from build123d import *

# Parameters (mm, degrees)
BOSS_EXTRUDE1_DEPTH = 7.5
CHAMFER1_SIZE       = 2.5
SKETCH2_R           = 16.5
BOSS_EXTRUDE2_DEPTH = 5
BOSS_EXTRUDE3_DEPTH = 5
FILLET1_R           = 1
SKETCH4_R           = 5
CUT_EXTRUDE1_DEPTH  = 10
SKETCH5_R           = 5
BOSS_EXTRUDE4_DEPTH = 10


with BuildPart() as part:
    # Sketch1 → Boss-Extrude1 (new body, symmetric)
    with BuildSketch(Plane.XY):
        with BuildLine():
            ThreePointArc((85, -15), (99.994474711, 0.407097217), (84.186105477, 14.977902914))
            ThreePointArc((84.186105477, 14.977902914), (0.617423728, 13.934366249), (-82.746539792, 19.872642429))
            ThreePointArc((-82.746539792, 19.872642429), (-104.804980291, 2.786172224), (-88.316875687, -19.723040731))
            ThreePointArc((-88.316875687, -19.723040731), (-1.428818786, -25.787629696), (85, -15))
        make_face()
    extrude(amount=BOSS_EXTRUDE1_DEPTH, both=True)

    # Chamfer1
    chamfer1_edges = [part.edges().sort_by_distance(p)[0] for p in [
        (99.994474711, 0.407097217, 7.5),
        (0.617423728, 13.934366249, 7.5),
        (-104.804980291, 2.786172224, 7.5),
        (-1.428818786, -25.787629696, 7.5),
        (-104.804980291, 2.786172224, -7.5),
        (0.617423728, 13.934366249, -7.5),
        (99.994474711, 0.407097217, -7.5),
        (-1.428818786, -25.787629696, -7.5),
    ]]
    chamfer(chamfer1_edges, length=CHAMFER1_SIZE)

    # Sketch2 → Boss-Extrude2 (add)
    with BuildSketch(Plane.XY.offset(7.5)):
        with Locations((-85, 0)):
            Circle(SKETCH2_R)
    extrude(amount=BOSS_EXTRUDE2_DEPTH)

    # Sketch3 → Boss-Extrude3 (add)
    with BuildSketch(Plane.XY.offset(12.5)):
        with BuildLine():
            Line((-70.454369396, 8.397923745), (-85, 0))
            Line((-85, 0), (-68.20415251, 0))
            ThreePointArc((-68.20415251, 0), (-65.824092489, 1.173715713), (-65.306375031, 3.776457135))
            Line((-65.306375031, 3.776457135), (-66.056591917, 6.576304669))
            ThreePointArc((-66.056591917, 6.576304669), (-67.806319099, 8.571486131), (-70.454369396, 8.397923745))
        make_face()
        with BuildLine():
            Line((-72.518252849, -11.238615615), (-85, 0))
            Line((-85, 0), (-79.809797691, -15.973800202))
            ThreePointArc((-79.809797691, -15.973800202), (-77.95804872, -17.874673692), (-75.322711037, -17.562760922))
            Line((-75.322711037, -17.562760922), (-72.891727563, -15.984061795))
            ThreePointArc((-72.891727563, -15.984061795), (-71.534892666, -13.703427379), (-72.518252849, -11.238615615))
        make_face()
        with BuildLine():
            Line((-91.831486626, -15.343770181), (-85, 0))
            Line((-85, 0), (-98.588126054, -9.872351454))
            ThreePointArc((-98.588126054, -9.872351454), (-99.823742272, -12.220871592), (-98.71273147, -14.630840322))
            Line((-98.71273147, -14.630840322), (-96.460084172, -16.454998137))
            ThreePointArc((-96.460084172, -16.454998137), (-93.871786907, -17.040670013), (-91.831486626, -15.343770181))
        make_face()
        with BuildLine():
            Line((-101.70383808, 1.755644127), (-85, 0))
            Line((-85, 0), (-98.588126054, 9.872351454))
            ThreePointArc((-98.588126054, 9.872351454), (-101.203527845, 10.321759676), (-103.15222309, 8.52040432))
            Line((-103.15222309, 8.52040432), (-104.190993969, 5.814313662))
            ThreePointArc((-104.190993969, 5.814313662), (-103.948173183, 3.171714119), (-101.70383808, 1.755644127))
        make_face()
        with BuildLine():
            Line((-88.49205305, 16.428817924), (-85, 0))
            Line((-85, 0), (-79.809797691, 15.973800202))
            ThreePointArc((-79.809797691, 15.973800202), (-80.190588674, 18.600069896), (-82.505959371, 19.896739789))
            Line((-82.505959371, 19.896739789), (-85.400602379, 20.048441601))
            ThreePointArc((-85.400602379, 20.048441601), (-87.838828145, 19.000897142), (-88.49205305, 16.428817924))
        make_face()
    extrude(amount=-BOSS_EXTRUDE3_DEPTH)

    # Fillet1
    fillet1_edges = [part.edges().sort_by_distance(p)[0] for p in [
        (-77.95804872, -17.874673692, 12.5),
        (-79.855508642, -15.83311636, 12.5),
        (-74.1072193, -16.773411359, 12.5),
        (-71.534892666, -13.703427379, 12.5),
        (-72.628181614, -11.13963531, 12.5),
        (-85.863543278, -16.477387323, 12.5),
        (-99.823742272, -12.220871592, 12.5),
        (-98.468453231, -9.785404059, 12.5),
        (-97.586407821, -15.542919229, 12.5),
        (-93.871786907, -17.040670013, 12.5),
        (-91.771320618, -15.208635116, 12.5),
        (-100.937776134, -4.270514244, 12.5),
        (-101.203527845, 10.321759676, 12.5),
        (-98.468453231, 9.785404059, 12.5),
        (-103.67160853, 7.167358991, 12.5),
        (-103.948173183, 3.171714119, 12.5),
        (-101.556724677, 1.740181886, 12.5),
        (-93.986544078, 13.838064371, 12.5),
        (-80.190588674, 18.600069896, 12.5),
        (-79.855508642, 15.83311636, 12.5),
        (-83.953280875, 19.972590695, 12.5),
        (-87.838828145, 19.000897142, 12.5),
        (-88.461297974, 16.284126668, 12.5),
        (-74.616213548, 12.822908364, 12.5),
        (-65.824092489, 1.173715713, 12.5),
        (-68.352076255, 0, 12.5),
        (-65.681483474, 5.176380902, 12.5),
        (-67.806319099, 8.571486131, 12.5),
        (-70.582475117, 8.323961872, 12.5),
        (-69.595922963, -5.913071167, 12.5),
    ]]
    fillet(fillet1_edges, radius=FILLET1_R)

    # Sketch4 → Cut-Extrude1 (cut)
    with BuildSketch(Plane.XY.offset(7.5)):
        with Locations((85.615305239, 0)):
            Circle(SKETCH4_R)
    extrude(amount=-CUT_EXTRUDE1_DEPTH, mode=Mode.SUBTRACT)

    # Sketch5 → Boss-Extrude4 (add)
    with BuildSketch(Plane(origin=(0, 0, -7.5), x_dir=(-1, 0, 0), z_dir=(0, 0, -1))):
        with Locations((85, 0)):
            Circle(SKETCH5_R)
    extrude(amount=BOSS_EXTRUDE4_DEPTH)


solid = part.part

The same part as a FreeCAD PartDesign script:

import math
import FreeCAD as App
import Part
import Sketcher
Q = App.Units.Quantity


def edges_at(feature, points):
    """Names of the edges that pass closest to the given points."""
    edges = feature.Shape.Edges
    near = lambda p: min(range(len(edges)), key=lambda i: edges[i].distToShape(Part.Vertex(*p))[0])
    return sorted({f"Edge{near(p) + 1}" for p in points})

doc = App.newDocument("Part")
body = doc.addObject("PartDesign::Body", "Body")

# Sketch on XY plane
sketch1 = body.newObject("Sketcher::SketchObject", "Sketch")
sketch1.AttachmentSupport = (doc.getObject("XY_Plane"), [""])
sketch1.MapMode = "FlatFace"
sketch1.addGeometry([
    Part.ArcOfCircle(Part.Circle(App.Vector(85, 0, 0), App.Vector(0, 0, 1), 15), math.radians(-90), math.radians(93)),
    Part.ArcOfCircle(Part.Circle(App.Vector(30, 1014, 0), App.Vector(0, 0, 1), 1000), math.radians(-96.47), math.radians(-86.89)),
    Part.ArcOfCircle(Part.Circle(App.Vector(-85, 0, 0), App.Vector(0, 0, 1), 20), math.radians(84), math.radians(260)),
    Part.ArcOfCircle(Part.Circle(App.Vector(-14, 424, 0), App.Vector(0, 0, 1), 450), math.radians(-100), math.radians(-77)),
], False)
sketch1.addConstraint([
    Sketcher.Constraint("Tangent", 0, 2, 1, 2),
    Sketcher.Constraint("Tangent", 1, 1, 2, 1),
    Sketcher.Constraint("Tangent", 2, 2, 3, 1),
    Sketcher.Constraint("Coincident", 3, 2, 0, 1),
    Sketcher.Constraint("Symmetric", 0, 3, 2, 3, -1, 1),
    Sketcher.Constraint("PointOnObject", 0, 3, -1),
    Sketcher.Constraint("Vertical", 0, 3, 3, 2),
    Sketcher.Constraint("Radius", 0, 15.0),
    Sketcher.Constraint("Radius", 1, 1000.0),
    Sketcher.Constraint("Radius", 2, 20.0),
    Sketcher.Constraint("Radius", 3, 450.0),
    Sketcher.Constraint("DistanceX", -1, 1, 0, 3, 85.0),
])
pad1 = body.newObject("PartDesign::Pad", "Pad")
pad1.Profile = sketch1
pad1.Length = 15
pad1.Midplane = True
doc.recompute()

chamfer = body.newObject("PartDesign::Chamfer", "Chamfer")
chamfer.Base = (pad1, edges_at(pad1, [
    (99.994, 0.407, 7.5),
    (0.617, 13.934, 7.5),
    (-104.805, 2.786, 7.5),
    (-1.429, -25.788, 7.5),
    (-104.805, 2.786, -7.5),
    (0.617, 13.934, -7.5),
    (99.994, 0.407, -7.5),
    (-1.429, -25.788, -7.5),
]))
chamfer.Size = 2.5

# Sketch on XY plane
sketch2 = body.newObject("Sketcher::SketchObject", "Sketch001")
sketch2.AttachmentSupport = (doc.getObject("XY_Plane"), [""])
sketch2.MapMode = "FlatFace"
sketch2.AttachmentOffset = App.Placement(App.Vector(0, 0, 7.5), App.Rotation())
sketch2.addGeometry(Part.Circle(App.Vector(-85, 0, 0), App.Vector(0, 0, 1), 16), False)
sketch2.addConstraint([
    Sketcher.Constraint("PointOnObject", 0, 3, -1),
    Sketcher.Constraint("Diameter", 0, 33.0),
    Sketcher.Constraint("DistanceX", 0, 3, -1, 1, 85.0),
])
pad2 = body.newObject("PartDesign::Pad", "Pad001")
pad2.Profile = sketch2
pad2.Length = 5

# Sketch on XY plane
sketch3 = body.newObject("Sketcher::SketchObject", "Sketch002")
sketch3.AttachmentSupport = (doc.getObject("XY_Plane"), [""])
sketch3.MapMode = "FlatFace"
sketch3.AttachmentOffset = App.Placement(App.Vector(0, 0, 12.5), App.Rotation())
sketch3.addGeometry([
    Part.LineSegment(App.Vector(-70.5, 8.4, 0), App.Vector(-85, 0, 0)),  # 0
    Part.LineSegment(App.Vector(-85, 0, 0), App.Vector(-68.2, 0, 0)),  # 1
    Part.ArcOfCircle(Part.Circle(App.Vector(-68.2, 3, 0), App.Vector(0, 0, 1), 3), math.radians(-90), math.radians(15)),  # 2
    Part.LineSegment(App.Vector(-65.3, 3.8, 0), App.Vector(-66.1, 6.6, 0)),  # 3
    Part.ArcOfCircle(Part.Circle(App.Vector(-69, 5.8, 0), App.Vector(0, 0, 1), 3), math.radians(15), math.radians(120)),  # 4
    Part.LineSegment(App.Vector(-72.5, -11.2, 0), App.Vector(-85, 0, 0)),  # 5
    Part.LineSegment(App.Vector(-85, 0, 0), App.Vector(-79.8, -16, 0)),  # 6
    Part.ArcOfCircle(Part.Circle(App.Vector(-77, -15, 0), App.Vector(0, 0, 1), 3), math.radians(-162), math.radians(-57)),  # 7
    Part.LineSegment(App.Vector(-75.3, -17.6, 0), App.Vector(-72.9, -16, 0)),  # 8
    Part.ArcOfCircle(Part.Circle(App.Vector(-74.5, -13.5, 0), App.Vector(0, 0, 1), 3), math.radians(-57), math.radians(48)),  # 9
    Part.LineSegment(App.Vector(-91.8, -15.3, 0), App.Vector(-85, 0, 0)),  # 10
    Part.LineSegment(App.Vector(-85, 0, 0), App.Vector(-98.6, -9.9, 0)),  # 11
    Part.ArcOfCircle(Part.Circle(App.Vector(-96.8, -12.3, 0), App.Vector(0, 0, 1), 3), math.radians(126), math.radians(231)),  # 12
    Part.LineSegment(App.Vector(-98.7, -14.6, 0), App.Vector(-96.5, -16.5, 0)),  # 13
    Part.ArcOfCircle(Part.Circle(App.Vector(-94.6, -14.1, 0), App.Vector(0, 0, 1), 3), math.radians(-129), math.radians(-24)),  # 14
    Part.LineSegment(App.Vector(-101.7, 1.8, 0), App.Vector(-85, 0, 0)),  # 15
    Part.LineSegment(App.Vector(-85, 0, 0), App.Vector(-98.6, 9.9, 0)),  # 16
    Part.ArcOfCircle(Part.Circle(App.Vector(-100.4, 7.4, 0), App.Vector(0, 0, 1), 3), math.radians(54), math.radians(159)),  # 17
    Part.LineSegment(App.Vector(-103.2, 8.5, 0), App.Vector(-104.2, 5.8, 0)),  # 18
    Part.ArcOfCircle(Part.Circle(App.Vector(-101.4, 4.7, 0), App.Vector(0, 0, 1), 3), math.radians(159), math.radians(264)),  # 19
    Part.LineSegment(App.Vector(-88.5, 16.4, 0), App.Vector(-85, 0, 0)),  # 20
    Part.LineSegment(App.Vector(-85, 0, 0), App.Vector(-79.8, 16, 0)),  # 21
    Part.ArcOfCircle(Part.Circle(App.Vector(-82.7, 16.9, 0), App.Vector(0, 0, 1), 3), math.radians(-18), math.radians(87)),  # 22
    Part.LineSegment(App.Vector(-82.5, 19.9, 0), App.Vector(-85.4, 20, 0)),  # 23
    Part.ArcOfCircle(Part.Circle(App.Vector(-85.6, 17.1, 0), App.Vector(0, 0, 1), 3), math.radians(87), math.radians(192)),  # 24
], False)
sketch3.addConstraint([
    Sketcher.Constraint("Coincident", 0, 2, 1, 1),
    Sketcher.Constraint("Tangent", 1, 2, 2, 1),
    Sketcher.Constraint("Tangent", 2, 2, 3, 1),
    Sketcher.Constraint("Tangent", 3, 2, 4, 1),
    Sketcher.Constraint("Tangent", 4, 2, 0, 1),
    Sketcher.Constraint("Coincident", 5, 2, 6, 1),
    Sketcher.Constraint("Tangent", 6, 2, 7, 1),
    Sketcher.Constraint("Tangent", 7, 2, 8, 1),
    Sketcher.Constraint("Tangent", 8, 2, 9, 1),
    Sketcher.Constraint("Tangent", 9, 2, 5, 1),
    Sketcher.Constraint("Coincident", 10, 2, 11, 1),
    Sketcher.Constraint("Tangent", 11, 2, 12, 1),
    Sketcher.Constraint("Tangent", 12, 2, 13, 1),
    Sketcher.Constraint("Tangent", 13, 2, 14, 1),
    Sketcher.Constraint("Tangent", 14, 2, 10, 1),
    Sketcher.Constraint("Coincident", 15, 2, 16, 1),
    Sketcher.Constraint("Tangent", 16, 2, 17, 1),
    Sketcher.Constraint("Tangent", 17, 2, 18, 1),
    Sketcher.Constraint("Tangent", 18, 2, 19, 1),
    Sketcher.Constraint("Tangent", 19, 2, 15, 1),
    Sketcher.Constraint("Coincident", 20, 2, 21, 1),
    Sketcher.Constraint("Tangent", 21, 2, 22, 1),
    Sketcher.Constraint("Tangent", 22, 2, 23, 1),
    Sketcher.Constraint("Tangent", 23, 2, 24, 1),
    Sketcher.Constraint("Tangent", 24, 2, 20, 1),
    Sketcher.Constraint("Horizontal", 1),
    Sketcher.Constraint("Coincident", 5, 2, 0, 2),
    Sketcher.Constraint("Coincident", 10, 2, 0, 2),
    Sketcher.Constraint("Coincident", 15, 2, 0, 2),
    Sketcher.Constraint("Coincident", 20, 2, 0, 2),
    Sketcher.Constraint("Equal", 2, 4),
    Sketcher.Constraint("Equal", 4, 7),
    Sketcher.Constraint("Equal", 7, 9),
    Sketcher.Constraint("Equal", 9, 12),
    Sketcher.Constraint("Equal", 12, 14),
    Sketcher.Constraint("Equal", 14, 17),
    Sketcher.Constraint("Equal", 17, 19),
    Sketcher.Constraint("Equal", 19, 22),
    Sketcher.Constraint("Equal", 22, 24),
    Sketcher.Constraint("Symmetric", 11, 2, 16, 2, -1),
    Sketcher.Constraint("Symmetric", 6, 2, 21, 2, -1),
    Sketcher.Constraint("PointOnObject", 0, 2, -1),
    Sketcher.Constraint("Equal", 0, 5),
    Sketcher.Constraint("Equal", 5, 6),
    Sketcher.Constraint("Equal", 3, 8),
    Sketcher.Constraint("Equal", 6, 10),
    Sketcher.Constraint("Equal", 10, 11),
    Sketcher.Constraint("Equal", 8, 13),
    Sketcher.Constraint("Equal", 11, 15),
    Sketcher.Constraint("Equal", 13, 18),
    Sketcher.Constraint("Equal", 16, 20),
    Sketcher.Constraint("Equal", 18, 23),
    Sketcher.Constraint("Radius", 2, 3.0),
    Sketcher.Constraint("Angle", 0, Q("-150 deg")),
    Sketcher.Constraint("Angle", 3, Q("105 deg")),
    Sketcher.Constraint("Angle", 5, Q("138 deg")),
    Sketcher.Constraint("Angle", 10, Q("66 deg")),
    Sketcher.Constraint("DistanceX", 0, 2, -1, 1, 85.0),
    Sketcher.Constraint("DistanceY", 13, 2, -1, 1, 16.454998),
])
pad3 = body.newObject("PartDesign::Pad", "Pad002")
pad3.Profile = sketch3
pad3.Length = 5
pad3.Reversed = True
doc.recompute()

fillet = body.newObject("PartDesign::Fillet", "Fillet")
fillet.Base = (pad3, edges_at(pad3, [
    (-77.958, -17.875, 12.5),
    (-79.856, -15.833, 12.5),
    (-74.107, -16.773, 12.5),
    (-71.535, -13.703, 12.5),
    (-72.628, -11.14, 12.5),
    (-85.864, -16.477, 12.5),
    (-99.824, -12.221, 12.5),
    (-98.468, -9.785, 12.5),
    (-97.586, -15.543, 12.5),
    (-93.872, -17.041, 12.5),
    (-91.771, -15.209, 12.5),
    (-100.938, -4.271, 12.5),
    (-101.204, 10.322, 12.5),
    (-98.468, 9.785, 12.5),
    (-103.672, 7.167, 12.5),
    (-103.948, 3.172, 12.5),
    (-101.557, 1.74, 12.5),
    (-93.987, 13.838, 12.5),
    (-80.191, 18.6, 12.5),
    (-79.856, 15.833, 12.5),
    (-83.953, 19.973, 12.5),
    (-87.839, 19.001, 12.5),
    (-88.461, 16.284, 12.5),
    (-74.616, 12.823, 12.5),
    (-65.824, 1.174, 12.5),
    (-68.352, 0, 12.5),
    (-65.681, 5.176, 12.5),
    (-67.806, 8.571, 12.5),
    (-70.582, 8.324, 12.5),
    (-69.596, -5.913, 12.5),
]))
fillet.Radius = 1

# Sketch on XY plane
sketch4 = body.newObject("Sketcher::SketchObject", "Sketch003")
sketch4.AttachmentSupport = (doc.getObject("XY_Plane"), [""])
sketch4.MapMode = "FlatFace"
sketch4.AttachmentOffset = App.Placement(App.Vector(0, 0, 7.5), App.Rotation())
sketch4.addGeometry(Part.Circle(App.Vector(86, 0, 0), App.Vector(0, 0, 1), 5), False)
sketch4.addConstraint([
    Sketcher.Constraint("PointOnObject", 0, 3, -1),
    Sketcher.Constraint("Diameter", 0, 10.0),
    Sketcher.Constraint("DistanceX", -1, 1, 0, 3, 85.615305),
])
pocket1 = body.newObject("PartDesign::Pocket", "Pocket")
pocket1.Profile = sketch4
pocket1.Length = 10

# Sketch on XY plane
sketch5 = body.newObject("Sketcher::SketchObject", "Sketch004")
sketch5.AttachmentSupport = (doc.getObject("XY_Plane"), [""])
sketch5.MapMode = "FlatFace"
sketch5.AttachmentOffset = App.Placement(App.Vector(0, 0, -7.5), App.Rotation())
sketch5.addGeometry(Part.Circle(App.Vector(-85, 0, 0), App.Vector(0, 0, 1), 5), False)
sketch5.addConstraint([
    Sketcher.Constraint("PointOnObject", 0, 3, -1),
    Sketcher.Constraint("Diameter", 0, 10.0),
    Sketcher.Constraint("DistanceX", 0, 3, -1, 1, 85.0),
])
pad4 = body.newObject("PartDesign::Pad", "Pad003")
pad4.Profile = sketch5
pad4.Length = 10
pad4.Reversed = True

doc.recompute()
